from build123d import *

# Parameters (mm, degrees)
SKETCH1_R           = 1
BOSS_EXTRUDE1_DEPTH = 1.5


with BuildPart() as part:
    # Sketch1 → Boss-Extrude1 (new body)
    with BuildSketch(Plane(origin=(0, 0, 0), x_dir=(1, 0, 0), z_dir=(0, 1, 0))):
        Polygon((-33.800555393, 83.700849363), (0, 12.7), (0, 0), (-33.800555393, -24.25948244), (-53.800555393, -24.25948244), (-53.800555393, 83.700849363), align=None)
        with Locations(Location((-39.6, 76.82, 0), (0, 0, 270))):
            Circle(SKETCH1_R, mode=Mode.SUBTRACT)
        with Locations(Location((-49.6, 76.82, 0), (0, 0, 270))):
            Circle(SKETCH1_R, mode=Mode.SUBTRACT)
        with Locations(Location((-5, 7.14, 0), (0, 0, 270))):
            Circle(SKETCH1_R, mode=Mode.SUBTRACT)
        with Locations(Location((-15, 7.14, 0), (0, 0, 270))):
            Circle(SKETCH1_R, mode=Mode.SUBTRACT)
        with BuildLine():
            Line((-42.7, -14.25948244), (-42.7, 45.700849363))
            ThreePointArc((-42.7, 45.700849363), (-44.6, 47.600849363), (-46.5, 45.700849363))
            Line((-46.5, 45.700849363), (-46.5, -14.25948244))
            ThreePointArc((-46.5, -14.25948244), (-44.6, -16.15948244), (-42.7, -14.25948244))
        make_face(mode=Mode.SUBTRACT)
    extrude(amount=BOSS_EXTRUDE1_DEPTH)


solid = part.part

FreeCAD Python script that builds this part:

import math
import FreeCAD as App
import Part
import Sketcher
Q = App.Units.Quantity


def add_polygon(sketch, points):
    """Adds a closed chain of lines whose ends are joined by coincident constraints."""
    first, n = sketch.GeometryCount, len(points)
    for a, b in zip(points, points[1:] + points[:1]):
        sketch.addGeometry(Part.LineSegment(App.Vector(*a, 0), App.Vector(*b, 0)), False)
    for i in range(n):
        sketch.addConstraint(Sketcher.Constraint("Coincident", first + i, 2, first + (i + 1) % n, 1))

doc = App.newDocument("Part")
body = doc.addObject("PartDesign::Body", "Body")

# Sketch on XZ plane
sketch1 = doc.addObject("Sketcher::SketchObject", "Sketch")
body.addObject(sketch1)
sketch1.AttachmentSupport = (doc.XZ_Plane, [""])
sketch1.MapMode = "FlatFace"
add_polygon(sketch1, [(0, -12.7), (-33.8, -83.7), (-53.8, -83.7), (-53.8, 24.3), (-33.8, 24.3), (0, 0)])  # lines 0-5
sketch1.addGeometry(Part.Circle(App.Vector(-5, -7.1, 0), App.Vector(0, 0, 1), 1), False)  # 6
sketch1.addGeometry(Part.Circle(App.Vector(-15, -7.1, 0), App.Vector(0, 0, 1), 1), False)  # 7
sketch1.addGeometry(Part.ArcOfCircle(Part.Circle(App.Vector(-44.6, 14.3, 0), App.Vector(0, 0, 1), 1.9), math.radians(0), math.radians(180)), False)  # 8
sketch1.addGeometry(Part.LineSegment(App.Vector(-46.5, 14.3, 0), App.Vector(-46.5, -45.7, 0)), False)  # 9
sketch1.addGeometry(Part.ArcOfCircle(Part.Circle(App.Vector(-44.6, -45.7, 0), App.Vector(0, 0, 1), 1.9), math.radians(180), math.radians(360)), False)  # 10
sketch1.addGeometry(Part.LineSegment(App.Vector(-42.7, -45.7, 0), App.Vector(-42.7, 14.3, 0)), False)  # 11
sketch1.addGeometry(Part.Circle(App.Vector(-39.6, -76.8, 0), App.Vector(0, 0, 1), 1), False)  # 12
sketch1.addGeometry(Part.Circle(App.Vector(-49.6, -76.8, 0), App.Vector(0, 0, 1), 1), False)  # 13
sketch1.addConstraint(Sketcher.Constraint("Tangent", 8, 2, 9, 1))
sketch1.addConstraint(Sketcher.Constraint("Tangent", 9, 2, 10, 1))
sketch1.addConstraint(Sketcher.Constraint("Tangent", 10, 2, 11, 1))
sketch1.addConstraint(Sketcher.Constraint("Tangent", 11, 2, 8, 1))
sketch1.addConstraint(Sketcher.Constraint("Horizontal", 1))
sketch1.addConstraint(Sketcher.Constraint("Vertical", 2))
sketch1.addConstraint(Sketcher.Constraint("Horizontal", 3))
sketch1.addConstraint(Sketcher.Constraint("Vertical", 5))
sketch1.addConstraint(Sketcher.Constraint("Vertical", 9))
sketch1.addConstraint(Sketcher.Constraint("Vertical", 11))
sketch1.addConstraint(Sketcher.Constraint("Coincident", 4, 2, -1, 1))
sketch1.addConstraint(Sketcher.Constraint("Equal", 6, 7))
sketch1.addConstraint(Sketcher.Constraint("Equal", 7, 12))
sketch1.addConstraint(Sketcher.Constraint("Equal", 12, 13))
sketch1.addConstraint(Sketcher.Constraint("Horizontal", 6, 3, 7, 3))
sketch1.addConstraint(Sketcher.Constraint("Horizontal", 12, 3, 13, 3))
sketch1.addConstraint(Sketcher.Constraint("Vertical", 0, 2, 3, 2))
sketch1.addConstraint(Sketcher.Constraint("Diameter", 6, Q("2 mm")))
sketch1.addConstraint(Sketcher.Constraint("Radius", 8, Q("1.9 mm")))
sketch1.addConstraint(Sketcher.Constraint("DistanceX", 1, 2, 1, 1, Q("20 mm")))
sketch1.addConstraint(Sketcher.Constraint("DistanceY", 5, 2, 5, 1, Q("12.7 mm")))
sketch1.addConstraint(Sketcher.Constraint("DistanceX", 6, 3, -1, 1, Q("5 mm")))
sketch1.addConstraint(Sketcher.Constraint("DistanceX", 7, 3, -1, 1, Q("15 mm")))
sketch1.addConstraint(Sketcher.Constraint("DistanceX", 10, 3, 12, 3, Q("5 mm")))
sketch1.addConstraint(Sketcher.Constraint("DistanceX", 13, 3, 12, 3, Q("10 mm")))
sketch1.addConstraint(Sketcher.Constraint("DistanceY", 0, 2, 10, 3, Q("38 mm")))
sketch1.addConstraint(Sketcher.Constraint("DistanceY", 8, 3, 2, 2, Q("10 mm")))
sketch1.addConstraint(Sketcher.Constraint("DistanceX", 8, 3, -1, 1, Q("44.6 mm")))
sketch1.addConstraint(Sketcher.Constraint("DistanceY", 6, 3, -1, 1, Q("7.14 mm")))
sketch1.addConstraint(Sketcher.Constraint("DistanceY", 12, 3, -1, 1, Q("76.82 mm")))
sketch1.addConstraint(Sketcher.Constraint("DistanceY", 2, 1, 2, 2, Q("107.960332 mm")))
sketch1.addConstraint(Sketcher.Constraint("Distance", 4, Q("41.605289 mm")))
sketch1.addConstraint(Sketcher.Constraint("DistanceY", 10, 3, -1, 1, Q("45.700849 mm")))
pad1 = doc.addObject("PartDesign::Pad", "Pad")
body.addObject(pad1)
pad1.Profile = sketch1
pad1.Length = 1.5
pad1.Reversed = True

doc.recompute()
